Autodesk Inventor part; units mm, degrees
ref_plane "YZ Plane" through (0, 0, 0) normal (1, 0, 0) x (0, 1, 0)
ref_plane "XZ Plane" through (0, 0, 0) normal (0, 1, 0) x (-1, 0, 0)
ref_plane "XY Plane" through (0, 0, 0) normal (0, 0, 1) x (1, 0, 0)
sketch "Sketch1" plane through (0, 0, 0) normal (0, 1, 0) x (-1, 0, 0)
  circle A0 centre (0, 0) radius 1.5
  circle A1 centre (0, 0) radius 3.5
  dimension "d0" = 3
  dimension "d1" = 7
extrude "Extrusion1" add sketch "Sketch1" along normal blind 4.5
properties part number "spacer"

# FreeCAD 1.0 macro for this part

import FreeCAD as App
import Part
import Sketcher
Q = App.Units.Quantity

doc = App.newDocument("Part")
body = doc.addObject("PartDesign::Body", "Body")

# Sketch on XZ plane
sketch1 = body.newObject("Sketcher::SketchObject", "Sketch")
sketch1.AttachmentSupport = (doc.getObject("XZ_Plane"), [""])
sketch1.MapMode = "FlatFace"
sketch1.addGeometry([
    Part.Circle(App.Vector(0, 0, 0), App.Vector(0, 0, 1), 3.5),
    Part.Circle(App.Vector(0, 0, 0), App.Vector(0, 0, 1), 1.5),
], False)
sketch1.addConstraint([
    Sketcher.Constraint("Coincident", 0, 3, -1, 1),
    Sketcher.Constraint("Coincident", 1, 3, -1, 1),
    Sketcher.Constraint("Diameter", 0, Q("7 mm")),
    Sketcher.Constraint("Diameter", 1, Q("3 mm")),
])
pad1 = body.newObject("PartDesign::Pad", "Pad")
pad1.Profile = sketch1
pad1.Length = 4.5
pad1.Reversed = True

doc.recompute()
